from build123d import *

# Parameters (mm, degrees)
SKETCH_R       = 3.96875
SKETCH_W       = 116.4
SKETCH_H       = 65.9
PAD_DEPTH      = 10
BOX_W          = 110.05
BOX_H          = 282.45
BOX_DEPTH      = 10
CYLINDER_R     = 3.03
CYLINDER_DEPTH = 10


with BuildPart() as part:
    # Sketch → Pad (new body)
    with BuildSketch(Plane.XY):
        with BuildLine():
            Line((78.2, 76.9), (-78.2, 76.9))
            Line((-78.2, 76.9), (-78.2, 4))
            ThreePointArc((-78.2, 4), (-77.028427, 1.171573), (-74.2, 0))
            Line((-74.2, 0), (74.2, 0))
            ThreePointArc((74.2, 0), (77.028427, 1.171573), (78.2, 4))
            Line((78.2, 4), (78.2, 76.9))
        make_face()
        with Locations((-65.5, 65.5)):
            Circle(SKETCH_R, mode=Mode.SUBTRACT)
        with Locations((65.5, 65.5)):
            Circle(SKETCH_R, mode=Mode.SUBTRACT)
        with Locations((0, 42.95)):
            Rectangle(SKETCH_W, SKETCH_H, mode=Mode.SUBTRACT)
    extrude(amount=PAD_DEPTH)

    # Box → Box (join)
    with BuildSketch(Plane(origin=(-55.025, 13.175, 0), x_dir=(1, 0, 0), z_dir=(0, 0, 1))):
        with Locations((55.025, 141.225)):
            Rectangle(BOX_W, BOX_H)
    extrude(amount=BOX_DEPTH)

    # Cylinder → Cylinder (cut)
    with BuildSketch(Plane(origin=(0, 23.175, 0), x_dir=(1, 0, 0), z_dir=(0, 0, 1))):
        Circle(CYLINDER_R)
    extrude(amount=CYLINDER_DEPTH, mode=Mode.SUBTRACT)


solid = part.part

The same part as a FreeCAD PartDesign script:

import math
import FreeCAD as App
import Part
import Sketcher


def add_polygon(sketch, points):
    """Adds a closed chain of lines whose ends are joined by coincident constraints."""
    first, n = sketch.GeometryCount, len(points)
    for a, b in zip(points, points[1:] + points[:1]):
        sketch.addGeometry(Part.LineSegment(App.Vector(*a, 0), App.Vector(*b, 0)), False)
    for i in range(n):
        sketch.addConstraint(Sketcher.Constraint("Coincident", first + i, 2, first + (i + 1) % n, 1))

doc = App.newDocument("Part")
params = doc.addObject("Spreadsheet::Sheet", "Params")
for row, (alias, value) in enumerate([
    ("sketch1_radius", "4 mm"),
    ("sketch1_width", "156.4 mm"),
    ("sketch1_width2", "116.4 mm"),
    ("sketch1_height", "72.9 mm"),
    ("sketch1_height2", "65.9 mm"),
    ("pad1_length", "10 mm"),
    ("sketch2_width", "110.05 mm"),
    ("sketch2_height", "282.45 mm"),
    ("pad2_length", "10 mm"),
    ("sketch3_diameter", "6.06 mm"),
    ("pocket1_length", "10 mm"),
], start=1):
    params.set(f"A{row}", alias)
    params.set(f"B{row}", "=" + value)
    params.setAlias(f"B{row}", alias)

body = doc.addObject("PartDesign::Body", "Body")

sketch1 = body.newObject("Sketcher::SketchObject", "Sketch")
sketch1.AttachmentSupport = (doc.getObject("XY_Plane"), [""])
sketch1.MapMode = "FlatFace"
sketch1.addGeometry(Part.LineSegment(App.Vector(78.2, 76.9, 0), App.Vector(-78.2, 76.9, 0)), False)
sketch1.addGeometry(Part.LineSegment(App.Vector(-78.2, 76.9, 0), App.Vector(-78.2, 4, 0)), False)
sketch1.addGeometry(Part.ArcOfCircle(Part.Circle(App.Vector(-74.2, 4, 0), App.Vector(0, 0, 1), 4), math.radians(-180), math.radians(-90)), False)
sketch1.addGeometry(Part.LineSegment(App.Vector(-74.2, 0, 0), App.Vector(74.2, 0, 0)), False)
sketch1.addGeometry(Part.ArcOfCircle(Part.Circle(App.Vector(74.2, 4, 0), App.Vector(0, 0, 1), 4), math.radians(-90), math.radians(0)), False)
sketch1.addGeometry(Part.LineSegment(App.Vector(78.2, 4, 0), App.Vector(78.2, 76.9, 0)), False)
sketch1.addGeometry(Part.Circle(App.Vector(-65.5, 65.5, 0), App.Vector(0, 0, 1), 4), False)
add_polygon(sketch1, [(58.2, 10), (-58.2, 10), (-58.2, 75.9), (58.2, 75.9)])
sketch1.addGeometry(Part.Circle(App.Vector(65.5, 65.5, 0), App.Vector(0, 0, 1), 4), False)
sketch1.addConstraint([
    Sketcher.Constraint("Coincident", 0, 2, 1, 1),
    Sketcher.Constraint("Tangent", 1, 2, 2, 1),
    Sketcher.Constraint("Tangent", 2, 2, 3, 1),
    Sketcher.Constraint("Tangent", 3, 2, 4, 1),
    Sketcher.Constraint("Tangent", 4, 2, 5, 1),
    Sketcher.Constraint("Coincident", 5, 2, 0, 1),
    Sketcher.Constraint("Horizontal", 0),
    Sketcher.Constraint("Vertical", 1),
    Sketcher.Constraint("Horizontal", 3),
    Sketcher.Constraint("Vertical", 5),
    Sketcher.Constraint("Horizontal", 7),
    Sketcher.Constraint("Vertical", 8),
    Sketcher.Constraint("Horizontal", 9),
    Sketcher.Constraint("Vertical", 10),
    Sketcher.Constraint("Equal", 2, 4),
    Sketcher.Constraint("Equal", 6, 11),
    Sketcher.Constraint("Symmetric", 2, 2, 3, 2, -1, 1),
    Sketcher.Constraint("Symmetric", 6, 3, 11, 3, -2),
    Sketcher.Constraint("Radius", 2, 4.0),
    Sketcher.Constraint("DistanceX", 0, 2, 0, 1, 156.4),
    Sketcher.Constraint("DistanceX", 7, 2, 7, 1, 116.4),
    Sketcher.Constraint("DistanceY", 1, 2, 1, 1, 72.9),
    Sketcher.Constraint("DistanceY", 8, 1, 8, 2, 65.9),
    Sketcher.Constraint("DistanceY", -1, 1, 7, 2, 10.0),
    Sketcher.Constraint("DistanceX", 6, 3, 11, 3, 131.0),
    Sketcher.Constraint("DistanceX", 2, 3, 7, 2, 16.0),
    Sketcher.Constraint("Diameter", 6, 7.9375),
    Sketcher.Constraint("DistanceY", -1, 1, 6, 3, 65.5),
])
sketch1.setExpression("Constraints[22]", "Params.sketch1_radius")
sketch1.setExpression("Constraints[23]", "Params.sketch1_width")
sketch1.setExpression("Constraints[24]", "Params.sketch1_width2")
sketch1.setExpression("Constraints[25]", "Params.sketch1_height")
sketch1.setExpression("Constraints[26]", "Params.sketch1_height2")
pad1 = body.newObject("PartDesign::Pad", "Pad")
pad1.Profile = sketch1
pad1.setExpression("Length", "Params.pad1_length")

sketch2 = body.newObject("Sketcher::SketchObject", "Sketch001")
sketch2.AttachmentSupport = (doc.getObject("XY_Plane"), [""])
sketch2.MapMode = "FlatFace"
add_polygon(sketch2, [(-55, 296), (-55, 13), (55, 13), (55, 296)])
sketch2.addConstraint([
    Sketcher.Constraint("Vertical", 0),
    Sketcher.Constraint("Horizontal", 1),
    Sketcher.Constraint("Vertical", 2),
    Sketcher.Constraint("Horizontal", 3),
    Sketcher.Constraint("DistanceX", 1, 1, 1, 2, 110.05),
    Sketcher.Constraint("DistanceY", 0, 2, 0, 1, 282.45),
    Sketcher.Constraint("DistanceX", 0, 2, -1, 1, 55.025),
    Sketcher.Constraint("DistanceY", -1, 1, 0, 2, 13.175),
])
sketch2.setExpression("Constraints[8]", "Params.sketch2_width")
sketch2.setExpression("Constraints[9]", "Params.sketch2_height")
pad2 = body.newObject("PartDesign::Pad", "Pad001")
pad2.Profile = sketch2
pad2.setExpression("Length", "Params.pad2_length")

sketch3 = body.newObject("Sketcher::SketchObject", "Sketch002")
sketch3.AttachmentSupport = (doc.getObject("XY_Plane"), [""])
sketch3.MapMode = "FlatFace"
sketch3.addGeometry(Part.Circle(App.Vector(0, 23.2, 0), App.Vector(0, 0, 1), 3), False)
sketch3.addConstraint([
    Sketcher.Constraint("PointOnObject", 0, 3, -2),
    Sketcher.Constraint("Diameter", 0, 6.06),
    Sketcher.Constraint("DistanceY", -1, 1, 0, 3, 23.175),
])
sketch3.setExpression("Constraints[1]", "Params.sketch3_diameter")
pocket1 = body.newObject("PartDesign::Pocket", "Pocket")
pocket1.Profile = sketch3
pocket1.setExpression("Length", "Params.pocket1_length")
pocket1.Reversed = True

doc.recompute()
